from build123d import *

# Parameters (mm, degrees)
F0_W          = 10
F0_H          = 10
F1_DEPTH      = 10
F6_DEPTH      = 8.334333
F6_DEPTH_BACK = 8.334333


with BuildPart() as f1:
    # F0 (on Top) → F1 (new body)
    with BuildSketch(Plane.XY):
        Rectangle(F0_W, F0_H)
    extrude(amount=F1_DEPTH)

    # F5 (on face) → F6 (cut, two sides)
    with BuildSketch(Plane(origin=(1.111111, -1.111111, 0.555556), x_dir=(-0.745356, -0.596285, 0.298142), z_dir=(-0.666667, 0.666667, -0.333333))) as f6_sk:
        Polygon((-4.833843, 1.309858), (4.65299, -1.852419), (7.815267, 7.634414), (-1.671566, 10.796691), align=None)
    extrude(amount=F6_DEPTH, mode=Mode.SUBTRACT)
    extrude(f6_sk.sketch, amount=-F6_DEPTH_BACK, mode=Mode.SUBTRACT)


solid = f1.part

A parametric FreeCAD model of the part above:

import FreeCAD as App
import Part
import Sketcher

V = App.Vector
Q = App.Units.Quantity


def add_polygon(sketch, points):
    """Adds a closed chain of lines whose ends are joined by coincident constraints."""
    first, n = sketch.GeometryCount, len(points)
    for a, b in zip(points, points[1:] + points[:1]):
        sketch.addGeometry(Part.LineSegment(App.Vector(*a, 0), App.Vector(*b, 0)), False)
    for i in range(n):
        sketch.addConstraint(Sketcher.Constraint("Coincident", first + i, 2, first + (i + 1) % n, 1))

doc = App.newDocument("Part")
body = doc.addObject("PartDesign::Body", "Body")

# Sketch on XY plane
sketch1 = doc.addObject("Sketcher::SketchObject", "Sketch")
body.addObject(sketch1)
sketch1.AttachmentSupport = (doc.XY_Plane, [""])
sketch1.MapMode = "FlatFace"
add_polygon(sketch1, [(-5, 5), (-5, -5), (5, -5), (5, 5)])  # lines 0-3
sketch1.addConstraint(Sketcher.Constraint("Vertical", 0))
sketch1.addConstraint(Sketcher.Constraint("Horizontal", 1))
sketch1.addConstraint(Sketcher.Constraint("Vertical", 2))
sketch1.addConstraint(Sketcher.Constraint("Horizontal", 3))
sketch1.addConstraint(Sketcher.Constraint("Symmetric", 0, 2, 2, 2, -1, 1))
sketch1.addConstraint(Sketcher.Constraint("Equal", 3, 0))
sketch1.addConstraint(Sketcher.Constraint("DistanceX", 1, 1, 1, 2, Q("10 mm")))
pad1 = doc.addObject("PartDesign::Pad", "Pad")
body.addObject(pad1)
pad1.Profile = sketch1
pad1.Length = 10

# Sketch on an angled plane
sketch2 = doc.addObject("Sketcher::SketchObject", "Sketch001")
body.addObject(sketch2)
sketch2.Placement = App.Placement(V(1.111111, -1.111111, 0.555556), App.Rotation(V(-0.745355893, -0.596285093, 0.298142047), V(-0.000000035, 0.447213031, 0.894427473), V(-0.666666778, 0.666666778, -0.333332889), "ZXY"))
add_polygon(sketch2, [(-4.833843, 1.309858), (4.65299, -1.852419), (7.815267, 7.634414), (-1.671566, 10.796691)])  # lines 0-3
sketch2.addConstraint(Sketcher.Constraint("Perpendicular", 0, 1))
sketch2.addConstraint(Sketcher.Constraint("Perpendicular", 1, 2))
sketch2.addConstraint(Sketcher.Constraint("Perpendicular", 2, 3))
sketch2.addConstraint(Sketcher.Constraint("Equal", 0, 1))
sketch2.addConstraint(Sketcher.Constraint("Distance", 0, Q("10 mm")))
sketch2.addConstraint(Sketcher.Constraint("DistanceX", -1, 1, 0, 2, Q("4.65299 mm")))
sketch2.addConstraint(Sketcher.Constraint("DistanceY", 0, 2, -1, 1, Q("1.852419 mm")))
sketch2.addConstraint(Sketcher.Constraint("DistanceY", -1, 1, 2, 2, Q("10.796691 mm")))
pocket1 = doc.addObject("PartDesign::Pocket", "Pocket")
body.addObject(pocket1)
pocket1.Profile = sketch2
pocket1.Type = "ThroughAll"
pocket1.Midplane = True

doc.recompute()
